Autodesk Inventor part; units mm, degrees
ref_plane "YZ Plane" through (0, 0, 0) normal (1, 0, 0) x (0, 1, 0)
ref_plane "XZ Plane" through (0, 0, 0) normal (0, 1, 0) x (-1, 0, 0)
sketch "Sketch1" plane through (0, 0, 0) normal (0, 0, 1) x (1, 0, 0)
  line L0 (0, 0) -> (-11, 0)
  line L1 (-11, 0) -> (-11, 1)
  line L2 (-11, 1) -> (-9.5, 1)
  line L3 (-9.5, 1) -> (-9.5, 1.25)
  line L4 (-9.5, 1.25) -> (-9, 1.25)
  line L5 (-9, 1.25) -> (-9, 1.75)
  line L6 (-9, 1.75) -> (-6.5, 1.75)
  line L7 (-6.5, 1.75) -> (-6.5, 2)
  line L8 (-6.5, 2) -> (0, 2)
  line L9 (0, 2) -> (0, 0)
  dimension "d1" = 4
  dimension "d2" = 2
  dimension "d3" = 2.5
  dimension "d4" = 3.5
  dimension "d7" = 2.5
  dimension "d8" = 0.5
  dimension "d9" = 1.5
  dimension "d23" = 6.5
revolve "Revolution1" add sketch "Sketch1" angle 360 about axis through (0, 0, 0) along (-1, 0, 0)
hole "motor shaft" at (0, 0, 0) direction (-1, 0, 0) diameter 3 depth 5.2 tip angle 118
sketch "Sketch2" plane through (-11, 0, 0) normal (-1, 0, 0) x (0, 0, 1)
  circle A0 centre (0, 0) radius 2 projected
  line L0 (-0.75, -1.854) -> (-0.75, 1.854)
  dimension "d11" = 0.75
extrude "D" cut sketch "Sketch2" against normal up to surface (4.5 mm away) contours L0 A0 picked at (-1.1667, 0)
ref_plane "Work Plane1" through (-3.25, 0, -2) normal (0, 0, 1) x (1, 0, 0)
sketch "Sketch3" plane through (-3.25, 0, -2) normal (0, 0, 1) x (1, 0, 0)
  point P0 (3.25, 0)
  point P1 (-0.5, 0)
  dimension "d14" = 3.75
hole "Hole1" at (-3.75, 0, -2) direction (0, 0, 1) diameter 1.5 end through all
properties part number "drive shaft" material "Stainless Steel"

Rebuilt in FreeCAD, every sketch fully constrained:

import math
import FreeCAD as App
import Part
import Sketcher

V = App.Vector

doc = App.newDocument("Part")
body = doc.addObject("PartDesign::Body", "Body")

# Sketch on XY plane
sketch1 = body.newObject("Sketcher::SketchObject", "Sketch")
sketch1.AttachmentSupport = (doc.getObject("XY_Plane"), [""])
sketch1.MapMode = "FlatFace"
sketch1.addGeometry(Part.LineSegment(V(-11, 0, 0), V(0, 0, 0)), False)
sketch1.addGeometry(Part.LineSegment(V(0, 0, 0), V(0, 2, 0)), False)
sketch1.addGeometry(Part.LineSegment(V(0, 2, 0), V(-6.5, 2, 0)), False)
sketch1.addGeometry(Part.LineSegment(V(-6.5, 2, 0), V(-6.5, 1.75, 0)), False)
sketch1.addGeometry(Part.LineSegment(V(-6.5, 1.75, 0), V(-9, 1.75, 0)), False)
sketch1.addGeometry(Part.LineSegment(V(-9, 1.75, 0), V(-9, 1.25, 0)), False)
sketch1.addGeometry(Part.LineSegment(V(-9, 1.25, 0), V(-9.5, 1.25, 0)), False)
sketch1.addGeometry(Part.LineSegment(V(-9.5, 1.25, 0), V(-9.5, 1, 0)), False)
sketch1.addGeometry(Part.LineSegment(V(-9.5, 1, 0), V(-11, 1, 0)), False)
sketch1.addGeometry(Part.LineSegment(V(-11, 1, 0), V(-11, 0, 0)), False)
sketch1.addConstraint(Sketcher.Constraint("Coincident", 0, 2, 1, 1))
sketch1.addConstraint(Sketcher.Constraint("Coincident", 1, 2, 2, 1))
sketch1.addConstraint(Sketcher.Constraint("Coincident", 2, 2, 3, 1))
sketch1.addConstraint(Sketcher.Constraint("Coincident", 3, 2, 4, 1))
sketch1.addConstraint(Sketcher.Constraint("Coincident", 4, 2, 5, 1))
sketch1.addConstraint(Sketcher.Constraint("Coincident", 5, 2, 6, 1))
sketch1.addConstraint(Sketcher.Constraint("Coincident", 6, 2, 7, 1))
sketch1.addConstraint(Sketcher.Constraint("Coincident", 7, 2, 8, 1))
sketch1.addConstraint(Sketcher.Constraint("Coincident", 8, 2, 9, 1))
sketch1.addConstraint(Sketcher.Constraint("Coincident", 9, 2, 0, 1))
sketch1.addConstraint(Sketcher.Constraint("Horizontal", 0))
sketch1.addConstraint(Sketcher.Constraint("Vertical", 1))
sketch1.addConstraint(Sketcher.Constraint("Horizontal", 2))
sketch1.addConstraint(Sketcher.Constraint("Vertical", 3))
sketch1.addConstraint(Sketcher.Constraint("Horizontal", 4))
sketch1.addConstraint(Sketcher.Constraint("Vertical", 5))
sketch1.addConstraint(Sketcher.Constraint("Horizontal", 6))
sketch1.addConstraint(Sketcher.Constraint("Vertical", 7))
sketch1.addConstraint(Sketcher.Constraint("Horizontal", 8))
sketch1.addConstraint(Sketcher.Constraint("Vertical", 9))
sketch1.addConstraint(Sketcher.Constraint("Coincident", 0, 2, -1, 1))
sketch1.addConstraint(Sketcher.Constraint("Equal", 6, 5))
sketch1.addConstraint(Sketcher.Constraint("Equal", 3, 7))
sketch1.addConstraint(Sketcher.Constraint("DistanceY", 1, 1, 1, 2, 2.0))
sketch1.addConstraint(Sketcher.Constraint("DistanceX", 2, 2, 2, 1, 6.5))
sketch1.addConstraint(Sketcher.Constraint("DistanceX", 4, 2, 4, 1, 2.5))
sketch1.addConstraint(Sketcher.Constraint("DistanceX", 6, 2, 6, 1, 0.5))
sketch1.addConstraint(Sketcher.Constraint("DistanceX", 8, 2, 8, 1, 1.5))
sketch1.addConstraint(Sketcher.Constraint("DistanceY", 9, 2, 9, 1, 1.0))
revolution = body.newObject("PartDesign::Revolution", "Revolution")
revolution.Profile = sketch1
revolution.ReferenceAxis = (sketch1, ["H_Axis"])
revolution.Angle = 360

# Sketch on YZ plane
sketch2 = body.newObject("Sketcher::SketchObject", "Sketch001")
sketch2.AttachmentSupport = (doc.getObject("YZ_Plane"), [""])
sketch2.MapMode = "FlatFace"
sketch2.addGeometry(Part.Circle(V(0, 0, 0), V(0, 0, 1), 1.5), False)
sketch2.addConstraint(Sketcher.Constraint("Coincident", 0, 3, -1, 1))
sketch2.addConstraint(Sketcher.Constraint("Diameter", 0, 3.0))
doc.recompute()
hole = body.newObject("PartDesign::Hole", "Hole")
hole.Profile = sketch2
hole.ThreadType = "None"
hole.Diameter = 3
hole.DepthType = "Dimension"
hole.Depth = 5.2
hole.DrillPoint = "Angled"
hole.DrillPointAngle = 118

# Sketch on YZ plane
sketch3 = body.newObject("Sketcher::SketchObject", "Sketch002")
sketch3.AttachmentSupport = (doc.getObject("YZ_Plane"), [""])
sketch3.MapMode = "FlatFace"
sketch3.AttachmentOffset = App.Placement(V(0, 0, -11), App.Rotation())
sketch3.addGeometry(Part.LineSegment(V(-1.854, -0.75, 0), V(1.854, -0.75, 0)), False)
sketch3.addGeometry(Part.ArcOfCircle(Part.Circle(V(0, 0, 0), V(0, 0, 1), 2), math.radians(-157.975154), math.radians(-22.024846)), False)
sketch3.addConstraint(Sketcher.Constraint("Coincident", 0, 1, 1, 1))
sketch3.addConstraint(Sketcher.Constraint("Coincident", 1, 2, 0, 2))
sketch3.addConstraint(Sketcher.Constraint("Horizontal", 0))
sketch3.addConstraint(Sketcher.Constraint("Coincident", 1, 3, -1, 1))
sketch3.addConstraint(Sketcher.Constraint("Radius", 1, 2.0))
sketch3.addConstraint(Sketcher.Constraint("DistanceY", 0, 1, -1, 1, 0.75))
pocket1 = body.newObject("PartDesign::Pocket", "Pocket")
pocket1.Profile = sketch3
pocket1.Length = 4.5
pocket1.Reversed = True

# Sketch on XY plane
sketch4 = body.newObject("Sketcher::SketchObject", "Sketch003")
sketch4.AttachmentSupport = (doc.getObject("XY_Plane"), [""])
sketch4.MapMode = "FlatFace"
sketch4.AttachmentOffset = App.Placement(V(0, 0, -2), App.Rotation())
sketch4.addGeometry(Part.Circle(V(-3.75, 0, 0), V(0, 0, 1), 0.75), False)
sketch4.addConstraint(Sketcher.Constraint("PointOnObject", 0, 3, -1))
sketch4.addConstraint(Sketcher.Constraint("Diameter", 0, 1.5))
sketch4.addConstraint(Sketcher.Constraint("DistanceX", 0, 3, -1, 1, 3.75))
doc.recompute()
hole2 = body.newObject("PartDesign::Hole", "Hole001")
hole2.Profile = sketch4
hole2.ThreadType = "None"
hole2.Diameter = 1.5
hole2.DepthType = "ThroughAll"
hole2.Reversed = True

doc.recompute()
